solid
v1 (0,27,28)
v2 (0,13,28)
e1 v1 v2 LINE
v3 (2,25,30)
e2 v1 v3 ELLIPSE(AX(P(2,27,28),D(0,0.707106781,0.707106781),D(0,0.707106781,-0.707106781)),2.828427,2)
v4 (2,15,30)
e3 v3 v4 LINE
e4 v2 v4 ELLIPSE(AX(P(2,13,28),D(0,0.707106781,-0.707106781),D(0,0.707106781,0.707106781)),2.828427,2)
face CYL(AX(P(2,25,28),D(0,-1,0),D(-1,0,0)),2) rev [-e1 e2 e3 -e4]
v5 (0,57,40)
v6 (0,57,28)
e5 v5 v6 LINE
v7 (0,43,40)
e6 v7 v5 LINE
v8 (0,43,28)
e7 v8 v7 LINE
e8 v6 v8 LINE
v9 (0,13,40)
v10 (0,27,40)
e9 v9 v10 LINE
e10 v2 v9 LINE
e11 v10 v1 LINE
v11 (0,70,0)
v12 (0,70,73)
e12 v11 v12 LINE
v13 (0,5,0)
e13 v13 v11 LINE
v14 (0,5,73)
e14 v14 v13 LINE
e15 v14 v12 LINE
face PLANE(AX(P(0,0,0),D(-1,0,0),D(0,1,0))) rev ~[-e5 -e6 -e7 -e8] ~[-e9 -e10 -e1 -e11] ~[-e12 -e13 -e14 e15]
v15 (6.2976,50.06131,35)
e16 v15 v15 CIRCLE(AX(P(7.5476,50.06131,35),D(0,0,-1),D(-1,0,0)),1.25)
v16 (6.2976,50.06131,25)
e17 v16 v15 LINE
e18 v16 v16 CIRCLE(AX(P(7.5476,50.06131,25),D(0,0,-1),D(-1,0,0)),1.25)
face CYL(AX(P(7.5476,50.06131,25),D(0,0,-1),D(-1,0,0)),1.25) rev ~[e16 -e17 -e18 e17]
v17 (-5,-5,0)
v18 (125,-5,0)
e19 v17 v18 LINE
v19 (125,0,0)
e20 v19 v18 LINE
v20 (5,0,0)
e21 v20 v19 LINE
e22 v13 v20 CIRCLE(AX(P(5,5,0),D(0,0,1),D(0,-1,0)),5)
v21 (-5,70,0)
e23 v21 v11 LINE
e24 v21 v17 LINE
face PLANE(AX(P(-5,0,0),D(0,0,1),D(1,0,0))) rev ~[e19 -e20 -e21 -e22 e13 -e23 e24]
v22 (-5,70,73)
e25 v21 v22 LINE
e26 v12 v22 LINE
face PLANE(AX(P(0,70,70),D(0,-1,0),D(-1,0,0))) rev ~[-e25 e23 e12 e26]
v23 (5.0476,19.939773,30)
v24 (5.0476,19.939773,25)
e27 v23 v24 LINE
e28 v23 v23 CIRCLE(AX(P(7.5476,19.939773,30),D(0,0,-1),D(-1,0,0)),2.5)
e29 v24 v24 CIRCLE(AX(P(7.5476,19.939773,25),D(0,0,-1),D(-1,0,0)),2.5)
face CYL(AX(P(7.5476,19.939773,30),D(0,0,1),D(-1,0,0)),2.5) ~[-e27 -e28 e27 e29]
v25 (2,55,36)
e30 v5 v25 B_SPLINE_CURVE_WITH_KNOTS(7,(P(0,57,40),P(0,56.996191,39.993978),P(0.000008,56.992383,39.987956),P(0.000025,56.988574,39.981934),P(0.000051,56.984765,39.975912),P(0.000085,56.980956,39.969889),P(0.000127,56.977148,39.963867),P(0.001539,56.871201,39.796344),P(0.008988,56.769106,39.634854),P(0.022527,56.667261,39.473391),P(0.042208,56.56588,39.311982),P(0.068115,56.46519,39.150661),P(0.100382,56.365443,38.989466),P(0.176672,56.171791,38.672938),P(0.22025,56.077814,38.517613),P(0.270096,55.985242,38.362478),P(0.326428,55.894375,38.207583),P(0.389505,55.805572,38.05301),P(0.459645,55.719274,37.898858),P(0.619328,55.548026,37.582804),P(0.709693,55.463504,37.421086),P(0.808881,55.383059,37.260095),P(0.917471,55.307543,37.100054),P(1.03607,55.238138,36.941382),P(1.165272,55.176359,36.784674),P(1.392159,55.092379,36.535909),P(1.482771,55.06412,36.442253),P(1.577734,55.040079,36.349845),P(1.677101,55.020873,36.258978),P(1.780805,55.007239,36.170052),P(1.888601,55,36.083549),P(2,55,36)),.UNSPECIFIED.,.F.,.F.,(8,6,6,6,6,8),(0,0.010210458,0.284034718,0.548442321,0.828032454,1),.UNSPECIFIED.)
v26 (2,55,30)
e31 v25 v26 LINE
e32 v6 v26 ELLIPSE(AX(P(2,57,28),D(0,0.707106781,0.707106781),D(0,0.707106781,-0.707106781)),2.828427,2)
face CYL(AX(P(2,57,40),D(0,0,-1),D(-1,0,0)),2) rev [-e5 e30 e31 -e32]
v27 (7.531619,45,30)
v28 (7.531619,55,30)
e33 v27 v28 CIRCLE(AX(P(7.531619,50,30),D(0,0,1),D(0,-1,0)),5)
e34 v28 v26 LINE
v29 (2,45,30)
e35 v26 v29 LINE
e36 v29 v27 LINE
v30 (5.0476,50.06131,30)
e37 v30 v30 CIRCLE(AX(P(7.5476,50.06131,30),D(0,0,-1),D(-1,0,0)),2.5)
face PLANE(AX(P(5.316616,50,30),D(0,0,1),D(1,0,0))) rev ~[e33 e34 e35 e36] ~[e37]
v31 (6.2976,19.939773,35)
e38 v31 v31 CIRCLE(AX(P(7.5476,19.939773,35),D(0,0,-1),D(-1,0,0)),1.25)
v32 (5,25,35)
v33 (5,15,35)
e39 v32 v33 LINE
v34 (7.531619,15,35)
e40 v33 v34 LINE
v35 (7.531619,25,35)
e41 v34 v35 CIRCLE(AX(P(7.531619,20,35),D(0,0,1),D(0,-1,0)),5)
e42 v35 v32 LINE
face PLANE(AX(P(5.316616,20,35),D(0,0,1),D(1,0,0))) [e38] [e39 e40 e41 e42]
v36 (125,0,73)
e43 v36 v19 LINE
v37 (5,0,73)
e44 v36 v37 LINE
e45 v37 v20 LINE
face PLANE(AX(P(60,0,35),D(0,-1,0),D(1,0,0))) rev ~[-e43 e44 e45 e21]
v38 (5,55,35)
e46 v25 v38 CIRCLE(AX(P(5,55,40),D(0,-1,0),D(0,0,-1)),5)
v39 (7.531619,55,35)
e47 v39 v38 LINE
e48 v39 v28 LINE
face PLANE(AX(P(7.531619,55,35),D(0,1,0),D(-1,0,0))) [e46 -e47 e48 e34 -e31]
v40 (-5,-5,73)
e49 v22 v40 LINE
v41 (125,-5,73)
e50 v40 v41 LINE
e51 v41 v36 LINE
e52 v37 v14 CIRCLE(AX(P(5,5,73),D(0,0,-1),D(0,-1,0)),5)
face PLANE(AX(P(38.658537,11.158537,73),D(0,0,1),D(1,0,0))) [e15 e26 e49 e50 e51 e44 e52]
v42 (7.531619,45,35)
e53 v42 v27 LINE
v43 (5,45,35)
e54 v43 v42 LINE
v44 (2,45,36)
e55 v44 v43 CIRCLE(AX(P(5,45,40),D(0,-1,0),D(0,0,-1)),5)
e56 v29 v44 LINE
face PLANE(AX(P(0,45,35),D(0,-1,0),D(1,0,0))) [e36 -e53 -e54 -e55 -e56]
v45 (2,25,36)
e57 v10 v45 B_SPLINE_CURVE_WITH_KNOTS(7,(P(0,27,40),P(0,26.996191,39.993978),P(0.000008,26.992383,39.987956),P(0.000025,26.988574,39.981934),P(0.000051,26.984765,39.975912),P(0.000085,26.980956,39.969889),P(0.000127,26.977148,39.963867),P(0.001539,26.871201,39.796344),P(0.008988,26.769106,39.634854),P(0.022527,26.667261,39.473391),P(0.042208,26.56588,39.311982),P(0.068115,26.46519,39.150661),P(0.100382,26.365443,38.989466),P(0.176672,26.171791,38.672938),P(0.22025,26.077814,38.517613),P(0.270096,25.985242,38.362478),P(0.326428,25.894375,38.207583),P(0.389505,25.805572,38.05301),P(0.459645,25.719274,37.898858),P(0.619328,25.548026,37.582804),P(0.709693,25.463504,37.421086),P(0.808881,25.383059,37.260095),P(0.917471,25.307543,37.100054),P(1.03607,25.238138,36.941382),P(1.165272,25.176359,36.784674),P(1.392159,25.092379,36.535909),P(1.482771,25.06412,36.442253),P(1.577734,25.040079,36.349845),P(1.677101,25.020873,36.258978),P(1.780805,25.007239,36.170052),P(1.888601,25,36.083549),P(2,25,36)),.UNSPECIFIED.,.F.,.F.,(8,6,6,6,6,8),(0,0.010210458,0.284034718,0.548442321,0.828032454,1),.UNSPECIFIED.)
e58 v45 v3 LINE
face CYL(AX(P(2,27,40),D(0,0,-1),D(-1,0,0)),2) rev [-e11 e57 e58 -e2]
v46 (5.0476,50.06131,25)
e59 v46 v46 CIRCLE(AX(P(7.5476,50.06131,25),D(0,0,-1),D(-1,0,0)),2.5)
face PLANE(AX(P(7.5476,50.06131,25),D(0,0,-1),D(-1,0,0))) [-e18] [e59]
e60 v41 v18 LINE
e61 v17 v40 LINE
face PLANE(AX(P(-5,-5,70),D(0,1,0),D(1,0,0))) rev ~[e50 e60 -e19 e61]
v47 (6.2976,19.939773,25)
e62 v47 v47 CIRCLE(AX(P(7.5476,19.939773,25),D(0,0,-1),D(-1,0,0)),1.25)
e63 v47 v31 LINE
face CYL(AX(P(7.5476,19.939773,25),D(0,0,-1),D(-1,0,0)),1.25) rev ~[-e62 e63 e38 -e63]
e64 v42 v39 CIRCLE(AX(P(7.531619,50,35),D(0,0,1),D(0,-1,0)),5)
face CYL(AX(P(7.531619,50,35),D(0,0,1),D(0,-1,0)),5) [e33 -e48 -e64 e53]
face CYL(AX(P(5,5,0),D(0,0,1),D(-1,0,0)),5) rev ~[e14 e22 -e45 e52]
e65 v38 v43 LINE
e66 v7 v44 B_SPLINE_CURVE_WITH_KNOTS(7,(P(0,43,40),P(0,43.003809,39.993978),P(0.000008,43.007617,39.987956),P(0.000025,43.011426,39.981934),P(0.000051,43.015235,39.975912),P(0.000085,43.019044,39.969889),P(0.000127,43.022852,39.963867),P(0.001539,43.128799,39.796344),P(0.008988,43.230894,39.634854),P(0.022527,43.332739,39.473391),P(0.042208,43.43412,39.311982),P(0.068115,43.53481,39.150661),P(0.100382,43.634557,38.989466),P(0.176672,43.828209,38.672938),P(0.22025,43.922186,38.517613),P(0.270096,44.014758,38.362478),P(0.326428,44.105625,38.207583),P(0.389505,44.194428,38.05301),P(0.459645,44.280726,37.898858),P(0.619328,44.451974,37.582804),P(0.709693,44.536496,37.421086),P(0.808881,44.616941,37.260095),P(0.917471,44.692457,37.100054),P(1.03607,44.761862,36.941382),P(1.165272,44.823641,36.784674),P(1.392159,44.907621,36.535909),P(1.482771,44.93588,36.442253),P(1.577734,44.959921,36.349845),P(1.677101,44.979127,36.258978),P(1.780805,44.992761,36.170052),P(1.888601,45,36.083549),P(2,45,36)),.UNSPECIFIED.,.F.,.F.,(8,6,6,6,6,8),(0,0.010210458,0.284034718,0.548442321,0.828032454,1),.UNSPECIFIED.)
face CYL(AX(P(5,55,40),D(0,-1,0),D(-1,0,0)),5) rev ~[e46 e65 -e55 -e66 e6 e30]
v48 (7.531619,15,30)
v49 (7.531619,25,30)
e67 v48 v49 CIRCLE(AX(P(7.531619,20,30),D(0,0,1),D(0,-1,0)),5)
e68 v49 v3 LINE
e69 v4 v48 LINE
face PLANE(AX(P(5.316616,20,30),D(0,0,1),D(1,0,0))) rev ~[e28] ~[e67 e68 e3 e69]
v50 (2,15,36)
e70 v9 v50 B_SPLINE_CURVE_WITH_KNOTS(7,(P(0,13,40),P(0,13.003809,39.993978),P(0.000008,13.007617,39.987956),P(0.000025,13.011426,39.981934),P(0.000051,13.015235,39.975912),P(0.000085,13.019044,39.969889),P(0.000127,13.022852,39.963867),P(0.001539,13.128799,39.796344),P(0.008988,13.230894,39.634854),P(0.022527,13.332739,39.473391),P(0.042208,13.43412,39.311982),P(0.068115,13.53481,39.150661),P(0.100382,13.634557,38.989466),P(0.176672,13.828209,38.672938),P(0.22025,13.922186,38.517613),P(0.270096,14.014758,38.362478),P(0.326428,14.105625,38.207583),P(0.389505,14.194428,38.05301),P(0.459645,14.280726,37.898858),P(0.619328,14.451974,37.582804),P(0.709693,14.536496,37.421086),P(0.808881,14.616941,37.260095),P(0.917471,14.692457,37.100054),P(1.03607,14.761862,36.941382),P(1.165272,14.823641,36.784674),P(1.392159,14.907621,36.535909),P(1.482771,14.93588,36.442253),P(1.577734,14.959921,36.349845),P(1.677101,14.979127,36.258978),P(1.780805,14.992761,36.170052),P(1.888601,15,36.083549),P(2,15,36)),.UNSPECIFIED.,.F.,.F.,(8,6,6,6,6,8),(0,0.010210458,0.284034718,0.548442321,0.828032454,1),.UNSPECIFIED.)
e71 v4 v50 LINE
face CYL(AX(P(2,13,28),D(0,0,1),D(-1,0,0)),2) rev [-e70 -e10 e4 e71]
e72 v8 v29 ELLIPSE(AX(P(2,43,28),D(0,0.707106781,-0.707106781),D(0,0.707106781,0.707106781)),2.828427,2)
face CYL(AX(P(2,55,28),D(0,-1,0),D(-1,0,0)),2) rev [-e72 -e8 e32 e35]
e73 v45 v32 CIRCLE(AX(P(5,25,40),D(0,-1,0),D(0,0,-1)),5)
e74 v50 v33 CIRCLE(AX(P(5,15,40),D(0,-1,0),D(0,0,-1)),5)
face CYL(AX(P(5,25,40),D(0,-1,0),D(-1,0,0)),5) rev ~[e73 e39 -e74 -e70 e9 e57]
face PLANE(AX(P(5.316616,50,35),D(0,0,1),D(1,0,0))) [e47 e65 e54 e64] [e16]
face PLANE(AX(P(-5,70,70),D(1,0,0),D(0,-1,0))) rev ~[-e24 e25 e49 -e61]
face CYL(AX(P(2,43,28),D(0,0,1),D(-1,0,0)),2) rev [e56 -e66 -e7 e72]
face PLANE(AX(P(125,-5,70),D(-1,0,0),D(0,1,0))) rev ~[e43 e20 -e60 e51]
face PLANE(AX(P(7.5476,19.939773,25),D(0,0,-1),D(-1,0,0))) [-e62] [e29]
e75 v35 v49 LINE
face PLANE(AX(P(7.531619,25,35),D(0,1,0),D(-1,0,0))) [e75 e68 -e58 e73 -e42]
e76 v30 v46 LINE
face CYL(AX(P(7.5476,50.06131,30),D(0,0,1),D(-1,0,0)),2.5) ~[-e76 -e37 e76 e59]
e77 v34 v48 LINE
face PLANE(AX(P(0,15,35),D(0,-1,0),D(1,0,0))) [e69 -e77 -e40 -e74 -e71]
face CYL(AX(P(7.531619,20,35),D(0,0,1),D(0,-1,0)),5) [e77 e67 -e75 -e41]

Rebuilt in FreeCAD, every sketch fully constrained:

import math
import FreeCAD as App
import Part
import Sketcher

V = App.Vector
Q = App.Units.Quantity


def edges_at(feature, points):
    """Names of the edges that pass closest to the given points."""
    edges = feature.Shape.Edges
    near = lambda p: min(range(len(edges)), key=lambda i: edges[i].distToShape(Part.Vertex(*p))[0])
    return sorted({f"Edge{near(p) + 1}" for p in points})


def add_polygon(sketch, points):
    """Adds a closed chain of lines whose ends are joined by coincident constraints."""
    first, n = sketch.GeometryCount, len(points)
    for a, b in zip(points, points[1:] + points[:1]):
        sketch.addGeometry(Part.LineSegment(App.Vector(*a, 0), App.Vector(*b, 0)), False)
    for i in range(n):
        sketch.addConstraint(Sketcher.Constraint("Coincident", first + i, 2, first + (i + 1) % n, 1))

doc = App.newDocument("Part")
body = doc.addObject("PartDesign::Body", "Body")

sketch1 = body.newObject("Sketcher::SketchObject", "Sketch")
sketch1.AttachmentSupport = (doc.getObject("XY_Plane"), [""])
sketch1.MapMode = "FlatFace"
add_polygon(sketch1, [(-5, 70), (-5, 0), (0, 0), (0, 70)])
sketch1.addConstraint(Sketcher.Constraint("Vertical", 0))
sketch1.addConstraint(Sketcher.Constraint("Horizontal", 1))
sketch1.addConstraint(Sketcher.Constraint("Vertical", 2))
sketch1.addConstraint(Sketcher.Constraint("Horizontal", 3))
sketch1.addConstraint(Sketcher.Constraint("Coincident", 1, 2, -1, 1))
sketch1.addConstraint(Sketcher.Constraint("DistanceX", 1, 1, 1, 2, Q("5 mm")))
sketch1.addConstraint(Sketcher.Constraint("DistanceY", 0, 2, 0, 1, Q("70 mm")))
pad1 = body.newObject("PartDesign::Pad", "Pad")
pad1.Profile = sketch1
pad1.Length = 70

sketch2 = body.newObject("Sketcher::SketchObject", "Sketch001")
sketch2.AttachmentSupport = (doc.getObject("XY_Plane"), [""])
sketch2.MapMode = "FlatFace"
sketch2.AttachmentOffset = App.Placement(V(0, 0, 35), App.Rotation())
sketch2.addGeometry(Part.LineSegment(V(0, 45, 0), V(7.531619, 45, 0)), False)
sketch2.addGeometry(Part.ArcOfCircle(Part.Circle(V(7.531619, 50, 0), V(0, 0, 1), 5), math.radians(-90), math.radians(90)), False)
sketch2.addGeometry(Part.LineSegment(V(7.531619, 55, 0), V(0, 55, 0)), False)
sketch2.addGeometry(Part.LineSegment(V(0, 55, 0), V(0, 45, 0)), False)
sketch2.addGeometry(Part.LineSegment(V(0, 15, 0), V(7.531619, 15, 0)), False)
sketch2.addGeometry(Part.ArcOfCircle(Part.Circle(V(7.531619, 20, 0), V(0, 0, 1), 5), math.radians(-90), math.radians(90)), False)
sketch2.addGeometry(Part.LineSegment(V(7.531619, 25, 0), V(0, 25, 0)), False)
sketch2.addGeometry(Part.LineSegment(V(0, 25, 0), V(0, 15, 0)), False)
sketch2.addConstraint(Sketcher.Constraint("Tangent", 0, 2, 1, 1))
sketch2.addConstraint(Sketcher.Constraint("Tangent", 1, 2, 2, 1))
sketch2.addConstraint(Sketcher.Constraint("Coincident", 2, 2, 3, 1))
sketch2.addConstraint(Sketcher.Constraint("Coincident", 3, 2, 0, 1))
sketch2.addConstraint(Sketcher.Constraint("Tangent", 4, 2, 5, 1))
sketch2.addConstraint(Sketcher.Constraint("Tangent", 5, 2, 6, 1))
sketch2.addConstraint(Sketcher.Constraint("Coincident", 6, 2, 7, 1))
sketch2.addConstraint(Sketcher.Constraint("Coincident", 7, 2, 4, 1))
sketch2.addConstraint(Sketcher.Constraint("Horizontal", 0))
sketch2.addConstraint(Sketcher.Constraint("Horizontal", 2))
sketch2.addConstraint(Sketcher.Constraint("Vertical", 3))
sketch2.addConstraint(Sketcher.Constraint("Horizontal", 4))
sketch2.addConstraint(Sketcher.Constraint("Horizontal", 6))
sketch2.addConstraint(Sketcher.Constraint("Vertical", 7))
sketch2.addConstraint(Sketcher.Constraint("Equal", 1, 5))
sketch2.addConstraint(Sketcher.Constraint("PointOnObject", 2, 2, -2))
sketch2.addConstraint(Sketcher.Constraint("PointOnObject", 6, 2, -2))
sketch2.addConstraint(Sketcher.Constraint("Vertical", 1, 3, 5, 3))
sketch2.addConstraint(Sketcher.Constraint("Radius", 1, Q("5 mm")))
sketch2.addConstraint(Sketcher.Constraint("DistanceY", -1, 1, 1, 3, Q("50 mm")))
sketch2.addConstraint(Sketcher.Constraint("DistanceY", -1, 1, 5, 3, Q("20 mm")))
sketch2.addConstraint(Sketcher.Constraint("DistanceX", 0, 1, 0, 2, Q("7.531619 mm")))
pad2 = body.newObject("PartDesign::Pad", "Pad001")
pad2.Profile = sketch2
pad2.Length = 5
pad2.Reversed = True

sketch3 = body.newObject("Sketcher::SketchObject", "Sketch002")
sketch3.AttachmentSupport = (doc.getObject("XY_Plane"), [""])
sketch3.MapMode = "FlatFace"
sketch3.AttachmentOffset = App.Placement(V(0, 0, 30), App.Rotation())
sketch3.addGeometry(Part.Circle(V(7.5476, 50.06131, 0), V(0, 0, 1), 2.5), False)
sketch3.addGeometry(Part.Circle(V(7.5476, 19.939773, 0), V(0, 0, 1), 2.5), False)
sketch3.addConstraint(Sketcher.Constraint("Equal", 0, 1))
sketch3.addConstraint(Sketcher.Constraint("Vertical", 0, 3, 1, 3))
sketch3.addConstraint(Sketcher.Constraint("Diameter", 0, Q("5 mm")))
sketch3.addConstraint(Sketcher.Constraint("DistanceX", -1, 1, 0, 3, Q("7.5476 mm")))
sketch3.addConstraint(Sketcher.Constraint("DistanceY", -1, 1, 0, 3, Q("50.06131 mm")))
sketch3.addConstraint(Sketcher.Constraint("DistanceY", -1, 1, 1, 3, Q("19.939773 mm")))
pad3 = body.newObject("PartDesign::Pad", "Pad002")
pad3.Profile = sketch3
pad3.Length = 5
pad3.Reversed = True

sketch4 = body.newObject("Sketcher::SketchObject", "Sketch003")
sketch4.AttachmentSupport = (doc.getObject("XZ_Plane"), [""])
sketch4.MapMode = "FlatFace"
add_polygon(sketch4, [(-5, 70), (-5, 0), (125, 0), (125, 70)])
sketch4.addConstraint(Sketcher.Constraint("Vertical", 0))
sketch4.addConstraint(Sketcher.Constraint("Horizontal", 1))
sketch4.addConstraint(Sketcher.Constraint("Vertical", 2))
sketch4.addConstraint(Sketcher.Constraint("Horizontal", 3))
sketch4.addConstraint(Sketcher.Constraint("PointOnObject", 0, 2, -1))
sketch4.addConstraint(Sketcher.Constraint("DistanceX", 1, 1, 1, 2, Q("130 mm")))
sketch4.addConstraint(Sketcher.Constraint("DistanceY", 0, 2, 0, 1, Q("70 mm")))
sketch4.addConstraint(Sketcher.Constraint("DistanceX", 0, 2, -1, 1, Q("5 mm")))
pad4 = body.newObject("PartDesign::Pad", "Pad003")
pad4.Profile = sketch4
pad4.Length = 5

sketch5 = body.newObject("Sketcher::SketchObject", "Sketch004")
sketch5.AttachmentSupport = (doc.getObject("XY_Plane"), [""])
sketch5.MapMode = "FlatFace"
sketch5.AttachmentOffset = App.Placement(V(0, 0, 25), App.Rotation())
sketch5.addGeometry(Part.Circle(V(7.5476, 50.06131, 0), V(0, 0, 1), 1.25), False)
sketch5.addGeometry(Part.Circle(V(7.5476, 19.939773, 0), V(0, 0, 1), 1.25), False)
sketch5.addConstraint(Sketcher.Constraint("Equal", 0, 1))
sketch5.addConstraint(Sketcher.Constraint("Vertical", 0, 3, 1, 3))
sketch5.addConstraint(Sketcher.Constraint("Diameter", 0, Q("2.5 mm")))
sketch5.addConstraint(Sketcher.Constraint("DistanceX", -1, 1, 0, 3, Q("7.5476 mm")))
sketch5.addConstraint(Sketcher.Constraint("DistanceY", -1, 1, 0, 3, Q("50.06131 mm")))
sketch5.addConstraint(Sketcher.Constraint("DistanceY", -1, 1, 1, 3, Q("19.939773 mm")))
pocket1 = body.newObject("PartDesign::Pocket", "Pocket")
pocket1.Profile = sketch5
pocket1.Type = "ThroughAll"
pocket1.Reversed = True

sketch6 = body.newObject("Sketcher::SketchObject", "Sketch005")
sketch6.AttachmentSupport = (doc.getObject("XY_Plane"), [""])
sketch6.MapMode = "FlatFace"
sketch6.AttachmentOffset = App.Placement(V(0, 0, 70), App.Rotation())
add_polygon(sketch6, [(0, 70), (-5, 70), (-5, -5), (125, -5), (125, 0)])
sketch6.addConstraint(Sketcher.Constraint("Horizontal", 0))
sketch6.addConstraint(Sketcher.Constraint("Vertical", 1))
sketch6.addConstraint(Sketcher.Constraint("Horizontal", 2))
sketch6.addConstraint(Sketcher.Constraint("Vertical", 3))
sketch6.addConstraint(Sketcher.Constraint("PointOnObject", 3, 2, -1))
sketch6.addConstraint(Sketcher.Constraint("PointOnObject", 4, 2, -2))
sketch6.addConstraint(Sketcher.Constraint("Equal", 0, 3))
sketch6.addConstraint(Sketcher.Constraint("DistanceX", 0, 2, 0, 1, Q("5 mm")))
sketch6.addConstraint(Sketcher.Constraint("DistanceX", 2, 1, 2, 2, Q("130 mm")))
sketch6.addConstraint(Sketcher.Constraint("DistanceY", 1, 2, 1, 1, Q("75 mm")))
pad5 = body.newObject("PartDesign::Pad", "Pad004")
pad5.Profile = sketch6
pad5.Length = 3
doc.recompute()

fillet = body.newObject("PartDesign::Fillet", "Fillet")
fillet.Base = (pad5, edges_at(pad5, [(0, 35, 70), (62.5, 0, 70), (0, 0, 35)]))
fillet.Radius = 5
doc.recompute()

fillet2 = body.newObject("PartDesign::Fillet", "Fillet001")
fillet2.Base = (fillet, edges_at(fillet, [(0, 50, 35), (0, 20, 35)]))
fillet2.Radius = 5
doc.recompute()

fillet3 = body.newObject("PartDesign::Fillet", "Fillet002")
fillet3.Base = (fillet2, edges_at(fillet2, [(0, 50, 30), (0, 20, 30)]))
fillet3.Radius = 2
doc.recompute()

fillet4 = body.newObject("PartDesign::Fillet", "Fillet003")
fillet4.Base = (fillet3, edges_at(fillet3, [
    (0, 25, 34),
    (0, 15, 34),
    (0, 45, 34),
    (0, 55, 34),
]))
fillet4.Radius = 2

sketch7 = body.newObject("Sketcher::SketchObject", "Sketch006")
sketch7.AttachmentSupport = (doc.getObject("XY_Plane"), [""])
sketch7.MapMode = "FlatFace"
sketch7.AttachmentOffset = App.Placement(V(0, 0, 73), App.Rotation())
sketch7.addGeometry(Part.ArcOfCircle(Part.Circle(V(5, 5, 0), V(0, 0, 1), 5), math.radians(180), math.radians(270)), False)
sketch7.addGeometry(Part.LineSegment(V(0, 5, 0), V(0, 70, 0)), False)
sketch7.addGeometry(Part.LineSegment(V(0, 70, 0), V(125, 0, 0)), False)
sketch7.addGeometry(Part.LineSegment(V(125, 0, 0), V(5, 0, 0)), False)
sketch7.addConstraint(Sketcher.Constraint("Tangent", 0, 1, 1, 1))
sketch7.addConstraint(Sketcher.Constraint("Coincident", 1, 2, 2, 1))
sketch7.addConstraint(Sketcher.Constraint("Coincident", 2, 2, 3, 1))
sketch7.addConstraint(Sketcher.Constraint("Tangent", 3, 2, 0, 2))
sketch7.addConstraint(Sketcher.Constraint("Vertical", 1))
sketch7.addConstraint(Sketcher.Constraint("Horizontal", 3))
sketch7.addConstraint(Sketcher.Constraint("PointOnObject", 0, 1, -2))
sketch7.addConstraint(Sketcher.Constraint("PointOnObject", 2, 2, -1))
sketch7.addConstraint(Sketcher.Constraint("Radius", 0, Q("5 mm")))
sketch7.addConstraint(Sketcher.Constraint("DistanceX", 3, 2, 3, 1, Q("120 mm")))
sketch7.addConstraint(Sketcher.Constraint("DistanceY", 1, 1, 1, 2, Q("65 mm")))
pocket2 = body.newObject("PartDesign::Pocket", "Pocket001")
pocket2.Profile = sketch7
pocket2.Length = 8

doc.recompute()
